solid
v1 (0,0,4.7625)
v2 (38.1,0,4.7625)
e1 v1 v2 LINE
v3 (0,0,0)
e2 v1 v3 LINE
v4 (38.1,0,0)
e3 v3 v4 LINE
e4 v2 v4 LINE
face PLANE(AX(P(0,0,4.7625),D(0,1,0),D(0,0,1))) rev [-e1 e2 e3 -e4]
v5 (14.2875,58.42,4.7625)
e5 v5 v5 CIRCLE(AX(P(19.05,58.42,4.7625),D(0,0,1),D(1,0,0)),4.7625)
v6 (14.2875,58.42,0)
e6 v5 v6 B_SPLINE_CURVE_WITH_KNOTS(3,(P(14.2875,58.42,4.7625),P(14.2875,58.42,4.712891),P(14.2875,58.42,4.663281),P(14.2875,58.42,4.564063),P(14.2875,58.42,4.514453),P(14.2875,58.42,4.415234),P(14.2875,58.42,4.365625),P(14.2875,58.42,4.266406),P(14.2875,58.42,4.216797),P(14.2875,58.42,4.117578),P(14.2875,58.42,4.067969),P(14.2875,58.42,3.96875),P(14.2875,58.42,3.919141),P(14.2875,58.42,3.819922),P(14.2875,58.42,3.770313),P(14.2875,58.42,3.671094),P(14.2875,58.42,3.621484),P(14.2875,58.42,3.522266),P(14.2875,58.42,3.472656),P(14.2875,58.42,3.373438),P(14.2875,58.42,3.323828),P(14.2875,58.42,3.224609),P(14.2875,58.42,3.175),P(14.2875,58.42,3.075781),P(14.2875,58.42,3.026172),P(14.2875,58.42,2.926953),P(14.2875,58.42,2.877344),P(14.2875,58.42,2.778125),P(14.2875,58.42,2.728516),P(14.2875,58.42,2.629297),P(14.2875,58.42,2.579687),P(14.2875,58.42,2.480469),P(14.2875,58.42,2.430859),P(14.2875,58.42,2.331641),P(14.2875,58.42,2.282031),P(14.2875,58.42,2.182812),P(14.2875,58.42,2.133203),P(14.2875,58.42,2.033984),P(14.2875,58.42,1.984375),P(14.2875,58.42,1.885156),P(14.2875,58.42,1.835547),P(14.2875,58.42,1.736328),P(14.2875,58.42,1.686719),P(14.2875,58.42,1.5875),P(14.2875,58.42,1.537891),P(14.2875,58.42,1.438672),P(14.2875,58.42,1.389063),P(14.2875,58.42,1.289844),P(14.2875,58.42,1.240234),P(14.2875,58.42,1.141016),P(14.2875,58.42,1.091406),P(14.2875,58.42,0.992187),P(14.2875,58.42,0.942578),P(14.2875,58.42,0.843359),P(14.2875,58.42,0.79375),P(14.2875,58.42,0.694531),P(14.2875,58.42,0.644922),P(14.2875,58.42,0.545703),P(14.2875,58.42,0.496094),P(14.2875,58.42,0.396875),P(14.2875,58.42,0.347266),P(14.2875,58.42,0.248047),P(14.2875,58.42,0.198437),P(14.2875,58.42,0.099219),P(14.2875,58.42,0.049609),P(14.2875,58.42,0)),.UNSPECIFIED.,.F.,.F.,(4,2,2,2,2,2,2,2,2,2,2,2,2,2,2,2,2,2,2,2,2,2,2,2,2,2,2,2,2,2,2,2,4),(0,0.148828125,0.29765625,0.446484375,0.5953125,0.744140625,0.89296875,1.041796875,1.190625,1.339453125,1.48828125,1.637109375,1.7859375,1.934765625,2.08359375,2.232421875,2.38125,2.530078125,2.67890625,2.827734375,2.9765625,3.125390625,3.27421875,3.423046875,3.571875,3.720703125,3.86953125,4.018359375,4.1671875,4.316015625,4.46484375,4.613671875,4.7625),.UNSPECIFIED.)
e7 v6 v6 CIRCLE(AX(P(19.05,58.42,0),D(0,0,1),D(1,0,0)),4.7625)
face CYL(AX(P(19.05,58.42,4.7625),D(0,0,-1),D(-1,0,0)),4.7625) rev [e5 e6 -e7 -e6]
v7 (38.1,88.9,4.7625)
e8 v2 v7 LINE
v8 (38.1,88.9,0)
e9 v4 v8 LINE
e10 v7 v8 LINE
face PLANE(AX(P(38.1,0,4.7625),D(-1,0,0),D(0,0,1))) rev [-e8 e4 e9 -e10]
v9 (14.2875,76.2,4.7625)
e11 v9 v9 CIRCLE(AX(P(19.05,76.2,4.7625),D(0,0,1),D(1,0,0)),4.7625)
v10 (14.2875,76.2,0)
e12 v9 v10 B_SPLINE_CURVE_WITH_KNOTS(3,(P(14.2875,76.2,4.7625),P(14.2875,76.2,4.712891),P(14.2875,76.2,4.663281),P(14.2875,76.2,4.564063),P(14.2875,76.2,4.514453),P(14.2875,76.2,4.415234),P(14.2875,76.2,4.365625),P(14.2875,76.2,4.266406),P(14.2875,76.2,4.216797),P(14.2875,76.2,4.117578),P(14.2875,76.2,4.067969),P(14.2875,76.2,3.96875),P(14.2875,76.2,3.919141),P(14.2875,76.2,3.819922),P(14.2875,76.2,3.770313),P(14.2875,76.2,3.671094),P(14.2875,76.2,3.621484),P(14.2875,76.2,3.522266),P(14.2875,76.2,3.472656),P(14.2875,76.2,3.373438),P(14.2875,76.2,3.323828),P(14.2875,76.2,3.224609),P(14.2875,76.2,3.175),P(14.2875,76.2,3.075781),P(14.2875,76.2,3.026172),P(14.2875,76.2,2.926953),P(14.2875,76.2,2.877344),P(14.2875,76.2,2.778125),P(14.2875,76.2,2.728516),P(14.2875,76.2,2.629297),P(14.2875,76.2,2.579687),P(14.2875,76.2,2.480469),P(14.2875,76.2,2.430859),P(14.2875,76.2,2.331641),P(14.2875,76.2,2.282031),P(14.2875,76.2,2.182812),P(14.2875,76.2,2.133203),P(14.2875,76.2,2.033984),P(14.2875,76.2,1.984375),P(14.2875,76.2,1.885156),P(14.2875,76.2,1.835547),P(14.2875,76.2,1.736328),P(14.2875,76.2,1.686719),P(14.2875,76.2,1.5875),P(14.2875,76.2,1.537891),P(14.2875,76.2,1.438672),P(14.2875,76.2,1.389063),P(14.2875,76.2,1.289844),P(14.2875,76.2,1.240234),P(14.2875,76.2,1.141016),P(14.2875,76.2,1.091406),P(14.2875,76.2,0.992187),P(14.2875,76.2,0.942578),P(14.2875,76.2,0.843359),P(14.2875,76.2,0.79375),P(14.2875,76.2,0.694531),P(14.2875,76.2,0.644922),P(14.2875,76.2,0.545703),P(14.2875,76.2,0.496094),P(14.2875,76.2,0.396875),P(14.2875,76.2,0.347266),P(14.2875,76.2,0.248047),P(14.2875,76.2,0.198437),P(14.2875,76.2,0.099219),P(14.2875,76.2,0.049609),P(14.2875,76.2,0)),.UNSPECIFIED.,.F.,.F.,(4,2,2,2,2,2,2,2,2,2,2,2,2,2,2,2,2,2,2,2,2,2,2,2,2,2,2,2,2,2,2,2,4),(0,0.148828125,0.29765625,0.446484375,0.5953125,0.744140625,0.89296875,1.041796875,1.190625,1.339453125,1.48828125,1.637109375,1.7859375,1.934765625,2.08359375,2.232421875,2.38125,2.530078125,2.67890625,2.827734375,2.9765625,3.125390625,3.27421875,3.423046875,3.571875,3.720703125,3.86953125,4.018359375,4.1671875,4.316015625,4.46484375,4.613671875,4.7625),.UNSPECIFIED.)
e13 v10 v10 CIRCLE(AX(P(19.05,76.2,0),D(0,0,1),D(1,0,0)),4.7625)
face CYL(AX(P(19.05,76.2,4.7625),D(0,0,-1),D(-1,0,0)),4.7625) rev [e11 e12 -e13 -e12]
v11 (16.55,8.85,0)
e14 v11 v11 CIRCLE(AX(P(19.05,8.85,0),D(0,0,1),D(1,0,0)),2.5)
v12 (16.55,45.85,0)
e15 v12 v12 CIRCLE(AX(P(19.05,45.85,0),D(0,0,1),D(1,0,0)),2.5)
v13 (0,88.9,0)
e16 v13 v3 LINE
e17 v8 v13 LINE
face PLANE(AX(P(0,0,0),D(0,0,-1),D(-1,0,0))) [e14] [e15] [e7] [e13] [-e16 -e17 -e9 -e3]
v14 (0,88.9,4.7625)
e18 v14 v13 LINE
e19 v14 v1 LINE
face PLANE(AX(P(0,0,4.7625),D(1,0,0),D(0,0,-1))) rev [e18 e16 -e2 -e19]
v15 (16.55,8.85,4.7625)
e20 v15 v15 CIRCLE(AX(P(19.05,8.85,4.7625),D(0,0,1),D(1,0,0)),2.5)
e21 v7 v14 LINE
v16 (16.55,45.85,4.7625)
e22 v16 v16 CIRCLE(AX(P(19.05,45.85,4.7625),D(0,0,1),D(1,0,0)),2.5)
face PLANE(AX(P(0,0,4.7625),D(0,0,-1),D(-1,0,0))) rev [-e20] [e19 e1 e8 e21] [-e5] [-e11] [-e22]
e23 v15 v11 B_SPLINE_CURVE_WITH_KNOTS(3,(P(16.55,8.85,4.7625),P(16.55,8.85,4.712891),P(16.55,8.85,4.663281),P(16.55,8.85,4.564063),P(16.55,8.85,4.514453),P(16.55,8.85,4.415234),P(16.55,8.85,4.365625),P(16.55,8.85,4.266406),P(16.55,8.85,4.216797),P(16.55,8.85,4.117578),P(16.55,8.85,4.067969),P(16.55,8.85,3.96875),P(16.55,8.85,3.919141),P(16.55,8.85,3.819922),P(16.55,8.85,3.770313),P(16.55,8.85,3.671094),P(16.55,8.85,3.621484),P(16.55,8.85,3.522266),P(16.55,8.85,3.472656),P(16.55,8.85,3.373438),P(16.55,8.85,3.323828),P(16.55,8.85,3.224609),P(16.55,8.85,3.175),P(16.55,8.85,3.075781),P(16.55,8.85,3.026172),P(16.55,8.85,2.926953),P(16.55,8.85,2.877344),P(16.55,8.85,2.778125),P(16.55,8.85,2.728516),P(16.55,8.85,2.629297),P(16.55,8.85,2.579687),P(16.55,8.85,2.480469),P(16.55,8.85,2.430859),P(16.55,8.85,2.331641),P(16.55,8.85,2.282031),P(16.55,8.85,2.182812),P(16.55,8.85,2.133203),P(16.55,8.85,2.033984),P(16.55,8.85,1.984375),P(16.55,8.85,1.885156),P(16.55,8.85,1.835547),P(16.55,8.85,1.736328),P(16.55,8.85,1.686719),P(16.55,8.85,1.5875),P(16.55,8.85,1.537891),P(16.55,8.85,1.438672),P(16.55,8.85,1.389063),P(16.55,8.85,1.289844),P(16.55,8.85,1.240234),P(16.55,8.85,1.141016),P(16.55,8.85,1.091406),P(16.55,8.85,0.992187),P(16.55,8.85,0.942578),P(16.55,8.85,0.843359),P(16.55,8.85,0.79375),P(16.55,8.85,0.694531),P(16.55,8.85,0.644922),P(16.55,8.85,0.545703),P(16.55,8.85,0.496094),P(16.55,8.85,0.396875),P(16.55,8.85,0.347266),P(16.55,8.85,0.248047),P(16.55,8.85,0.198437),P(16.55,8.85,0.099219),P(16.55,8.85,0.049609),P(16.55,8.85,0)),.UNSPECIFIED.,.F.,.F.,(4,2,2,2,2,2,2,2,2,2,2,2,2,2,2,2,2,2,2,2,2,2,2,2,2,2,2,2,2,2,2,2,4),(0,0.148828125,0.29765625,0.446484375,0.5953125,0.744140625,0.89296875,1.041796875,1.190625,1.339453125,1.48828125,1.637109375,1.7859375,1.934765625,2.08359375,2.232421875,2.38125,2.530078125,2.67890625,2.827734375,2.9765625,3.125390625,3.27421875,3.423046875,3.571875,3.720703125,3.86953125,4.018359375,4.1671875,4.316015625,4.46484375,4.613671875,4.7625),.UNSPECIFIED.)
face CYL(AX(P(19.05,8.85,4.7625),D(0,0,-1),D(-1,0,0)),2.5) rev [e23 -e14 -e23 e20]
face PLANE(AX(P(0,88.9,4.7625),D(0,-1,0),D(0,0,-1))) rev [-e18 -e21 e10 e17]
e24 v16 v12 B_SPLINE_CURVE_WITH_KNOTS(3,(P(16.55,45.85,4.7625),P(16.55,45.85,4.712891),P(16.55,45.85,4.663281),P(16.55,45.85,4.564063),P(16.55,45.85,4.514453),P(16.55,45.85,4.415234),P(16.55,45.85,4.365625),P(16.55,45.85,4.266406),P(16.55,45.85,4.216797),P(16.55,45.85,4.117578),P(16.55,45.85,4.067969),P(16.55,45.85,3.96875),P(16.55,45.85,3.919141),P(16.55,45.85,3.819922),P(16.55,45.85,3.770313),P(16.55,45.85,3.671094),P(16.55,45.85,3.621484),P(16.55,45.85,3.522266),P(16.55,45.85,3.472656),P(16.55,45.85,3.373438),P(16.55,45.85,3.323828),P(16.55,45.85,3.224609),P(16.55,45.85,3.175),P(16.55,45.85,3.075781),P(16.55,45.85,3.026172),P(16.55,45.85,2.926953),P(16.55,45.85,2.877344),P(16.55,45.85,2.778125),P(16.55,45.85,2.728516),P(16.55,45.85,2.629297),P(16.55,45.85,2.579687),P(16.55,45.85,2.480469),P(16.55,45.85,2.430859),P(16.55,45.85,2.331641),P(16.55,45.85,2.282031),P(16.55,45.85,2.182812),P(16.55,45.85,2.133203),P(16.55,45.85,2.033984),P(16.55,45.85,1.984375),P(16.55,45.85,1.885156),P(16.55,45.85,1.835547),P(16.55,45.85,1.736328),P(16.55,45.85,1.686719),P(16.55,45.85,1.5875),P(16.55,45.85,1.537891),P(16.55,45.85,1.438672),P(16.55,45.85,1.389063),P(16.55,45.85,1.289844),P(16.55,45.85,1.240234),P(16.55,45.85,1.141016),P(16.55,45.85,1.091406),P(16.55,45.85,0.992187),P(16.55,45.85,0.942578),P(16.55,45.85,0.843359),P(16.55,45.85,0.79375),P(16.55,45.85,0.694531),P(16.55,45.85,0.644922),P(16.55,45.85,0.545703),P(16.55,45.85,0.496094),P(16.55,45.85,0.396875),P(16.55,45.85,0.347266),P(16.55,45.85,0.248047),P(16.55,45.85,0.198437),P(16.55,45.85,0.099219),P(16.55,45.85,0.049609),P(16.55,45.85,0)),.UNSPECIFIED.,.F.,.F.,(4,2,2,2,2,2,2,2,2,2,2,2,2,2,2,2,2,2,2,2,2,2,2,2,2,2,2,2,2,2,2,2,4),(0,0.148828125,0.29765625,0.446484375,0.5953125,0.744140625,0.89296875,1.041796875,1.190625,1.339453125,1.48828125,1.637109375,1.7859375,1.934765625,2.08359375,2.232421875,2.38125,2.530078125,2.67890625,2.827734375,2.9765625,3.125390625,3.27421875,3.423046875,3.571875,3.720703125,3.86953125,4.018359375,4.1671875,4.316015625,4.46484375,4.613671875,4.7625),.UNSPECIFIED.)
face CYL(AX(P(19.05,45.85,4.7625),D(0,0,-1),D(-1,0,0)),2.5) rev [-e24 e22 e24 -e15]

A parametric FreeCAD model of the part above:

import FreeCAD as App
import Part
import Sketcher

V = App.Vector
Q = App.Units.Quantity


def add_polygon(sketch, points):
    """Adds a closed chain of lines whose ends are joined by coincident constraints."""
    first, n = sketch.GeometryCount, len(points)
    for a, b in zip(points, points[1:] + points[:1]):
        sketch.addGeometry(Part.LineSegment(App.Vector(*a, 0), App.Vector(*b, 0)), False)
    for i in range(n):
        sketch.addConstraint(Sketcher.Constraint("Coincident", first + i, 2, first + (i + 1) % n, 1))

doc = App.newDocument("Part")
body = doc.addObject("PartDesign::Body", "Body")

sketch1 = body.newObject("Sketcher::SketchObject", "Sketch")
sketch1.AttachmentSupport = (doc.getObject("XY_Plane"), [""])
sketch1.MapMode = "FlatFace"
add_polygon(sketch1, [(0, 88.9), (0, 0), (38.1, 0), (38.1, 88.9)])
sketch1.addGeometry(Part.Circle(V(19.1, 8.8, 0), V(0, 0, 1), 2.5), False)
sketch1.addGeometry(Part.Circle(V(19.1, 45.9, 0), V(0, 0, 1), 2.5), False)
sketch1.addGeometry(Part.Circle(V(19.1, 58.4, 0), V(0, 0, 1), 4.8), False)
sketch1.addGeometry(Part.Circle(V(19.1, 76.2, 0), V(0, 0, 1), 4.8), False)
sketch1.addConstraint([
    Sketcher.Constraint("Vertical", 0),
    Sketcher.Constraint("Horizontal", 1),
    Sketcher.Constraint("Vertical", 2),
    Sketcher.Constraint("Horizontal", 3),
    Sketcher.Constraint("Coincident", 0, 2, -1, 1),
    Sketcher.Constraint("Equal", 4, 5),
    Sketcher.Constraint("Equal", 6, 7),
    Sketcher.Constraint("Vertical", 4, 3, 5, 3),
    Sketcher.Constraint("Vertical", 5, 3, 6, 3),
    Sketcher.Constraint("Vertical", 6, 3, 7, 3),
    Sketcher.Constraint("Diameter", 6, Q("0.375 in")),
    Sketcher.Constraint("DistanceX", 1, 1, 1, 2, Q("1.5 in")),
    Sketcher.Constraint("DistanceY", 0, 2, 0, 1, Q("3.5 in")),
    Sketcher.Constraint("DistanceY", -1, 1, 7, 3, Q("3 in")),
    Sketcher.Constraint("DistanceY", -1, 1, 6, 3, Q("2.3 in")),
    Sketcher.Constraint("Diameter", 4, 5.0),
    Sketcher.Constraint("DistanceX", -1, 1, 4, 3, Q("0.75 in")),
    Sketcher.Constraint("DistanceY", -1, 1, 4, 3, 8.85),
    Sketcher.Constraint("DistanceY", -1, 1, 5, 3, 45.85),
])
pad1 = body.newObject("PartDesign::Pad", "Pad")
pad1.Profile = sketch1
pad1.Length = Q("0.1875 in")

doc.recompute()
